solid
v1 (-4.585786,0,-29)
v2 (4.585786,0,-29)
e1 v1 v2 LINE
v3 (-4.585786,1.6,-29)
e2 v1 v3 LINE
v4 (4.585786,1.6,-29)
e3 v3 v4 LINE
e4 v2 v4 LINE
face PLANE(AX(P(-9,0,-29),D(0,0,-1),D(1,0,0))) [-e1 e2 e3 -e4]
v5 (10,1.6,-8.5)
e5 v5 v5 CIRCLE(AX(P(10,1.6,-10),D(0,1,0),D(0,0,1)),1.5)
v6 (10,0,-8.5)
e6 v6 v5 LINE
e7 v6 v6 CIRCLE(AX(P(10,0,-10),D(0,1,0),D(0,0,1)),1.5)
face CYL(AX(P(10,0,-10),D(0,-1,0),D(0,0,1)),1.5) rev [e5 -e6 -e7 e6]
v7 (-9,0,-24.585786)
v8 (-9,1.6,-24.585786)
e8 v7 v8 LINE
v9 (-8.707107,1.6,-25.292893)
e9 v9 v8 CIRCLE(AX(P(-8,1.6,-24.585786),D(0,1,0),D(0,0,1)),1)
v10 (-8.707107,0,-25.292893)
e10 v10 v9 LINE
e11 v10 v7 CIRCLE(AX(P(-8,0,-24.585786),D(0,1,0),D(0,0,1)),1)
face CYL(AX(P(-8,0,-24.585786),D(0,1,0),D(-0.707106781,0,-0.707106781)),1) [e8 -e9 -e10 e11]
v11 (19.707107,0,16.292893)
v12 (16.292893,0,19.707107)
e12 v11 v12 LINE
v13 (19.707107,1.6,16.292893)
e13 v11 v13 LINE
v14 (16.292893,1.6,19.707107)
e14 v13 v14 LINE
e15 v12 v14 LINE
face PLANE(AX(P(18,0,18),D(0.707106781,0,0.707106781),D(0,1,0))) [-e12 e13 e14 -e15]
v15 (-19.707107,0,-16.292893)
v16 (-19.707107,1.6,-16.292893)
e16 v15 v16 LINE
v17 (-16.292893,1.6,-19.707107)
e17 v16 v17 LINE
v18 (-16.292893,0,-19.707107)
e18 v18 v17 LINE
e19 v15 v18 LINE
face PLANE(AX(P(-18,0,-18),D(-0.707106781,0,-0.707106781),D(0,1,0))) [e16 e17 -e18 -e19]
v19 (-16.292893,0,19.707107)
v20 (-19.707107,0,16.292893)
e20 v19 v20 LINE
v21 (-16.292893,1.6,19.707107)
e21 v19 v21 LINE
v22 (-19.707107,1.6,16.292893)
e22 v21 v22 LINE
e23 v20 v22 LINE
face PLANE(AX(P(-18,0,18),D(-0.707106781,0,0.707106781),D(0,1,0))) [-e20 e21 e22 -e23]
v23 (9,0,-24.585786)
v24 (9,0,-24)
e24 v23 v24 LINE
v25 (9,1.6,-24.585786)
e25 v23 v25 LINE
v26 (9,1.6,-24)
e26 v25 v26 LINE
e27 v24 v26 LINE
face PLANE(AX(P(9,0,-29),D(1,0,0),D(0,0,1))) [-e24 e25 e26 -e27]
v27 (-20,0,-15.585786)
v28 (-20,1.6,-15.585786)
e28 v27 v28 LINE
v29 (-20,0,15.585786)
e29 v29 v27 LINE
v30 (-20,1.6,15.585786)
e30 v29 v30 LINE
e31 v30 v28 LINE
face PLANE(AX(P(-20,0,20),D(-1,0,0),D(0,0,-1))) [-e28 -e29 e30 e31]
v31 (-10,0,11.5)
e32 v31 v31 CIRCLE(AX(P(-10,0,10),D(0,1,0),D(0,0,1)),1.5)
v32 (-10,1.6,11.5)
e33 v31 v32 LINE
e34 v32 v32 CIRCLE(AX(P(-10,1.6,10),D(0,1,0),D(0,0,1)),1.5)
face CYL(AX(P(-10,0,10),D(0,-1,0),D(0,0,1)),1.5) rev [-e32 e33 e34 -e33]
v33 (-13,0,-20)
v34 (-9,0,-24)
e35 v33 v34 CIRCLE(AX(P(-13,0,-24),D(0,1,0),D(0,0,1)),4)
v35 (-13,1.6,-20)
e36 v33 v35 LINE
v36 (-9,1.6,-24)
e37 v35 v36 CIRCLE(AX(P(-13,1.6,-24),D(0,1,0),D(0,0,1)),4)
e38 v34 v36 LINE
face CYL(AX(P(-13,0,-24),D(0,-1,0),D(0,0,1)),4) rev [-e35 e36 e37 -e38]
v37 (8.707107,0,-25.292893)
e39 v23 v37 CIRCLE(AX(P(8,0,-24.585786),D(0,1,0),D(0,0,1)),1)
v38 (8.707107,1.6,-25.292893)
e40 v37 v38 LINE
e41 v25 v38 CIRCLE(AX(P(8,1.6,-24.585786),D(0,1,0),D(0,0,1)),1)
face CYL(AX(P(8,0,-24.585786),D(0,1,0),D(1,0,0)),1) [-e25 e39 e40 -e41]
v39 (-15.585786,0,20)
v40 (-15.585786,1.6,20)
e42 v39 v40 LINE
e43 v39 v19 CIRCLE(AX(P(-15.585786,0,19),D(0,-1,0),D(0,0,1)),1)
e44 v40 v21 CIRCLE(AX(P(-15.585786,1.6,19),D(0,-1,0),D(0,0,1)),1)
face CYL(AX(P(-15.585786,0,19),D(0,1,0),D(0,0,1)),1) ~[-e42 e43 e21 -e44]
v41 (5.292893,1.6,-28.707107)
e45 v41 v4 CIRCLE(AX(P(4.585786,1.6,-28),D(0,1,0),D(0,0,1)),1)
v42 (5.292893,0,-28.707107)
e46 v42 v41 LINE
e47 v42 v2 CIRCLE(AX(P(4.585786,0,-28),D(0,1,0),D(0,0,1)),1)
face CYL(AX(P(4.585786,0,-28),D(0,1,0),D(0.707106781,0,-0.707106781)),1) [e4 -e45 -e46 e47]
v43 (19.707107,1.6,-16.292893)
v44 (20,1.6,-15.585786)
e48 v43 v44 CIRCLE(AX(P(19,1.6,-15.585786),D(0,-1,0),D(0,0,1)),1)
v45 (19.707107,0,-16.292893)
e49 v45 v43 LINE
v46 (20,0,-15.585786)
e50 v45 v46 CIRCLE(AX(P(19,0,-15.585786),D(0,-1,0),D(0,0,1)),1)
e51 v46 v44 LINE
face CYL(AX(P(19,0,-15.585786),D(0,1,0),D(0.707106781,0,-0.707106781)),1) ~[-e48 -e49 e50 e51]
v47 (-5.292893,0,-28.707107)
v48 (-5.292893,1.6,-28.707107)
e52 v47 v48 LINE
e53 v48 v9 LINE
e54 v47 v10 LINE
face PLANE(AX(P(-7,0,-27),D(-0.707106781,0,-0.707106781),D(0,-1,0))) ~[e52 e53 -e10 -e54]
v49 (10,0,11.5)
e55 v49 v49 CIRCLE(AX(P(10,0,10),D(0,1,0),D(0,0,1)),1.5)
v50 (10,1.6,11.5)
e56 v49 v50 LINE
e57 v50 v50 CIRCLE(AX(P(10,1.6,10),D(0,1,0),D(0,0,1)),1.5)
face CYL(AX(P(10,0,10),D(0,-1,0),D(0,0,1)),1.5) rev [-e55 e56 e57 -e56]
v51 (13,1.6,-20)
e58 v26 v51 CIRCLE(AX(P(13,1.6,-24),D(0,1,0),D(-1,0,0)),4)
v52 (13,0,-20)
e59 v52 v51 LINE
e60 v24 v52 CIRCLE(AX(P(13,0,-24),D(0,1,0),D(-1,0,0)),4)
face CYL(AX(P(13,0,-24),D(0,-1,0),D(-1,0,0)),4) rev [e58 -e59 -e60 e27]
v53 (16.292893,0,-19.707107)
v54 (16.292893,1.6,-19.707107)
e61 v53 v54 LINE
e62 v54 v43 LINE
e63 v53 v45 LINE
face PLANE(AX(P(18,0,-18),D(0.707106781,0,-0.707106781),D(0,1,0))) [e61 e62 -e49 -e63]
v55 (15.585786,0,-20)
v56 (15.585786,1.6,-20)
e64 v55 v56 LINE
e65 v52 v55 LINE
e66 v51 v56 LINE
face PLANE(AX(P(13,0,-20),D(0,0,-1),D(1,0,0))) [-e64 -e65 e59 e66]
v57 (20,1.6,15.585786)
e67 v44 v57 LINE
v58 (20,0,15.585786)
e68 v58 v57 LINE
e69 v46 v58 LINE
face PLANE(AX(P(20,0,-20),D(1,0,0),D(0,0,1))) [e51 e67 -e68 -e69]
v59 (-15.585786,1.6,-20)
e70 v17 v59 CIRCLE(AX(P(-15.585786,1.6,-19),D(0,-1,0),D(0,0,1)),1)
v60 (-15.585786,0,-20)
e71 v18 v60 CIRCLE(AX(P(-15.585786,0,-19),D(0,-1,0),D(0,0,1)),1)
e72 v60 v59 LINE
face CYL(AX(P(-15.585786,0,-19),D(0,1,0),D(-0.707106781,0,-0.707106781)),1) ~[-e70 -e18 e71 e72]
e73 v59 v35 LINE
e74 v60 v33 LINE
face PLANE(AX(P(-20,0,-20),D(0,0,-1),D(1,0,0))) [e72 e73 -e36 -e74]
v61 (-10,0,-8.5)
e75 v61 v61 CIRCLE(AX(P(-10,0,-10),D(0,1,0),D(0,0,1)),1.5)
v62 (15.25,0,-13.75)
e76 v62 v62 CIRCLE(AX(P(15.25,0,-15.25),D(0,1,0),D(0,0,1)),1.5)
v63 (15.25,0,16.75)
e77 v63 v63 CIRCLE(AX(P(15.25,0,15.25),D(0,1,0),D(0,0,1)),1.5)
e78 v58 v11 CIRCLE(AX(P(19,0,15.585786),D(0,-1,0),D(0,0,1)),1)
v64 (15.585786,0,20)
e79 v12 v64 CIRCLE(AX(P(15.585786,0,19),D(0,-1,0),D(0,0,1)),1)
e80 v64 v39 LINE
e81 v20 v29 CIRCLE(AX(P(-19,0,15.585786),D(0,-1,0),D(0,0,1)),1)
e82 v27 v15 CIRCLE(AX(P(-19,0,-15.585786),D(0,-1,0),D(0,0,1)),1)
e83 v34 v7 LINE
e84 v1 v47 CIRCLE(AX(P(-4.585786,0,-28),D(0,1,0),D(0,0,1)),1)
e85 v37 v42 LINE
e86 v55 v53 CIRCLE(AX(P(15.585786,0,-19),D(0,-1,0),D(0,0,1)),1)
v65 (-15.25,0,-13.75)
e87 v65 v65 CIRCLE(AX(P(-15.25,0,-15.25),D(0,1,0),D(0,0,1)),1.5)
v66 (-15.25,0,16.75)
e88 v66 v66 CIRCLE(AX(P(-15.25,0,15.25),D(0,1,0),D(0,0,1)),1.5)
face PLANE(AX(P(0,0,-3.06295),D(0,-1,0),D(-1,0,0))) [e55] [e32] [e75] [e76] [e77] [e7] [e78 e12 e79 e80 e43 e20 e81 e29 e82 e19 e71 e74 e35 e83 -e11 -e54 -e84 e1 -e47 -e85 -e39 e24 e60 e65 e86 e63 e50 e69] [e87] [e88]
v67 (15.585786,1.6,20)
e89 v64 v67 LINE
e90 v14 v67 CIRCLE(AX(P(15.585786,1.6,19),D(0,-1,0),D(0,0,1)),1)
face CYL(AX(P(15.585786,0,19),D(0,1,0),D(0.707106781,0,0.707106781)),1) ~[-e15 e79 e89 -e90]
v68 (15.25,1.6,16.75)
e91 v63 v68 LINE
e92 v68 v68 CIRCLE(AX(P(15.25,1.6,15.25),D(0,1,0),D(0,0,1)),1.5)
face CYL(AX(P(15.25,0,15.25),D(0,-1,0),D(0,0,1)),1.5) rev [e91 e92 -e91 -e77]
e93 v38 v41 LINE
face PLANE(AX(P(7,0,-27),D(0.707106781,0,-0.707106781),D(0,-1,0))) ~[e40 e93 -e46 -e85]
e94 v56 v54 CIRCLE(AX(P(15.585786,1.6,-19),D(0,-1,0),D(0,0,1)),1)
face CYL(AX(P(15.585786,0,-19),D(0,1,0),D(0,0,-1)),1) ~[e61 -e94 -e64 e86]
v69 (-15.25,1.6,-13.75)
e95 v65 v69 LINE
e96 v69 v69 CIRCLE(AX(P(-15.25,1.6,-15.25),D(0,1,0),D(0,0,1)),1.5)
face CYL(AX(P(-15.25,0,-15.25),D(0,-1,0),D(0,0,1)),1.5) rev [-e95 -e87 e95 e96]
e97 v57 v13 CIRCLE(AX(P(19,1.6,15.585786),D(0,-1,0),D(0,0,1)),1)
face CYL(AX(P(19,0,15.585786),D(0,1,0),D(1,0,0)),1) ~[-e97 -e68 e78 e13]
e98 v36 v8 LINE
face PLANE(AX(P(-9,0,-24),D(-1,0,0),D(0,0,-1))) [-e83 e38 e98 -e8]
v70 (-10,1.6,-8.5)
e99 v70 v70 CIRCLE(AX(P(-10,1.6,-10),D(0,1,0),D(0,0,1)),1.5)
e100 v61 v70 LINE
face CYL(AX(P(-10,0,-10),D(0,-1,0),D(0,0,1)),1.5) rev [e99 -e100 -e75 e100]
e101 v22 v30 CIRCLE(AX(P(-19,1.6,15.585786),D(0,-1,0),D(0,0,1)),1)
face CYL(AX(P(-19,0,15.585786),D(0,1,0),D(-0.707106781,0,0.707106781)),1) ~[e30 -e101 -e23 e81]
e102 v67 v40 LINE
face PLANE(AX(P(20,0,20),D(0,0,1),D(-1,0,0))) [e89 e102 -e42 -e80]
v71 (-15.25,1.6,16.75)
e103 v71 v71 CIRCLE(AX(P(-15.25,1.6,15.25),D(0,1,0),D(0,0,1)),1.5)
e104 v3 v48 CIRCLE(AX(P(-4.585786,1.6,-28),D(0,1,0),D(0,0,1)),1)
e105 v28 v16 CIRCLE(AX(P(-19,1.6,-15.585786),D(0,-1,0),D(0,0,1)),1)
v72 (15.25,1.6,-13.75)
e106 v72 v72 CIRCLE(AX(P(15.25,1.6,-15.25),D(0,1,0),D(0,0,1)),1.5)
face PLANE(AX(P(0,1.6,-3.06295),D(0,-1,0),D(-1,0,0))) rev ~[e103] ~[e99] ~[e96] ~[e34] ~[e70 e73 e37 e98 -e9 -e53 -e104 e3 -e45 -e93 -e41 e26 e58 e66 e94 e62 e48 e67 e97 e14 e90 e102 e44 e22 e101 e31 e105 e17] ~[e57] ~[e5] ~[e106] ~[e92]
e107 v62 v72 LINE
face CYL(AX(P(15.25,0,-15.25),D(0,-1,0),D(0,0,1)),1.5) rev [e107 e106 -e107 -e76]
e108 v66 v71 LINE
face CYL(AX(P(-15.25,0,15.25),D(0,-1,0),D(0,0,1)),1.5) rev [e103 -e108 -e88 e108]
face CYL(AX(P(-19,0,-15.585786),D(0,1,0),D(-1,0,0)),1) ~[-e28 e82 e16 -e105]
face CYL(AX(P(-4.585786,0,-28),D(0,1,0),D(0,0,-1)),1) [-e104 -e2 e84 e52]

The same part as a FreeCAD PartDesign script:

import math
import FreeCAD as App
import Part
import Sketcher
from FreeCAD import Vector
Q = App.Units.Quantity


def edges_at(feature, points):
    """Names of the edges that pass closest to the given points."""
    edges = feature.Shape.Edges
    near = lambda p: min(range(len(edges)), key=lambda i: edges[i].distToShape(Part.Vertex(*p))[0])
    return sorted({f"Edge{near(p) + 1}" for p in points})

doc = App.newDocument("Part")
params = doc.addObject("Spreadsheet::Sheet", "Params")
for row, (alias, value) in enumerate([
    ("sketch1_diameter", "3 mm"),
    ("sketch1_radius", "4 mm"),
    ("sketch1_width", "7 mm"),
    ("sketch1_width2", "18 mm"),
    ("sketch1_height", "5 mm"),
    ("pad1_length", "1.6 mm"),
    ("chamfer_size", "4 mm"),
    ("fillet_radius", "1 mm"),
], start=1):
    params.set(f"A{row}", alias)
    params.set(f"B{row}", "=" + value)
    params.setAlias(f"B{row}", alias)

body = doc.addObject("PartDesign::Body", "Body")

sketch1 = body.newObject("Sketcher::SketchObject", "Sketch")
sketch1.AttachmentSupport = (doc.getObject("XZ_Plane"), [""])
sketch1.MapMode = "FlatFace"
sketch1.addGeometry(Part.LineSegment(Vector(20, -20, 0), Vector(13, -20, 0)), False)
sketch1.addGeometry(Part.ArcOfCircle(Part.Circle(Vector(13, -24, 0), Vector(0, 0, 1), 4), math.radians(90), math.radians(180)), False)
sketch1.addGeometry(Part.LineSegment(Vector(9, -24, 0), Vector(9, -29, 0)), False)
sketch1.addGeometry(Part.LineSegment(Vector(9, -29, 0), Vector(-9, -29, 0)), False)
sketch1.addGeometry(Part.LineSegment(Vector(-9, -29, 0), Vector(-9, -24, 0)), False)
sketch1.addGeometry(Part.ArcOfCircle(Part.Circle(Vector(-13, -24, 0), Vector(0, 0, 1), 4), math.radians(0), math.radians(90)), False)
sketch1.addGeometry(Part.LineSegment(Vector(-13, -20, 0), Vector(-20, -20, 0)), False)
sketch1.addGeometry(Part.LineSegment(Vector(-20, -20, 0), Vector(-20, 20, 0)), False)
sketch1.addGeometry(Part.LineSegment(Vector(-20, 20, 0), Vector(20, 20, 0)), False)
sketch1.addGeometry(Part.LineSegment(Vector(20, 20, 0), Vector(20, -20, 0)), False)
sketch1.addGeometry(Part.Circle(Vector(15.2, 15.2, 0), Vector(0, 0, 1), 1.5), False)
sketch1.addGeometry(Part.Circle(Vector(10, 10, 0), Vector(0, 0, 1), 1.5), False)
sketch1.addGeometry(Part.Circle(Vector(-15.2, 15.2, 0), Vector(0, 0, 1), 1.5), False)
sketch1.addGeometry(Part.Circle(Vector(-10, 10, 0), Vector(0, 0, 1), 1.5), False)
sketch1.addGeometry(Part.Circle(Vector(10, -10, 0), Vector(0, 0, 1), 1.5), False)
sketch1.addGeometry(Part.Circle(Vector(15.2, -15.2, 0), Vector(0, 0, 1), 1.5), False)
sketch1.addGeometry(Part.Circle(Vector(-10, -10, 0), Vector(0, 0, 1), 1.5), False)
sketch1.addGeometry(Part.Circle(Vector(-15.2, -15.2, 0), Vector(0, 0, 1), 1.5), False)
sketch1.addConstraint(Sketcher.Constraint("Tangent", 0, 2, 1, 1))
sketch1.addConstraint(Sketcher.Constraint("Tangent", 1, 2, 2, 1))
sketch1.addConstraint(Sketcher.Constraint("Coincident", 2, 2, 3, 1))
sketch1.addConstraint(Sketcher.Constraint("Coincident", 3, 2, 4, 1))
sketch1.addConstraint(Sketcher.Constraint("Tangent", 4, 2, 5, 1))
sketch1.addConstraint(Sketcher.Constraint("Tangent", 5, 2, 6, 1))
sketch1.addConstraint(Sketcher.Constraint("Coincident", 6, 2, 7, 1))
sketch1.addConstraint(Sketcher.Constraint("Coincident", 7, 2, 8, 1))
sketch1.addConstraint(Sketcher.Constraint("Coincident", 8, 2, 9, 1))
sketch1.addConstraint(Sketcher.Constraint("Coincident", 9, 2, 0, 1))
sketch1.addConstraint(Sketcher.Constraint("Horizontal", 0))
sketch1.addConstraint(Sketcher.Constraint("Vertical", 2))
sketch1.addConstraint(Sketcher.Constraint("Horizontal", 3))
sketch1.addConstraint(Sketcher.Constraint("Vertical", 4))
sketch1.addConstraint(Sketcher.Constraint("Horizontal", 6))
sketch1.addConstraint(Sketcher.Constraint("Vertical", 7))
sketch1.addConstraint(Sketcher.Constraint("Horizontal", 8))
sketch1.addConstraint(Sketcher.Constraint("Vertical", 9))
sketch1.addConstraint(Sketcher.Constraint("Equal", 1, 5))
sketch1.addConstraint(Sketcher.Constraint("Equal", 10, 11))
sketch1.addConstraint(Sketcher.Constraint("Equal", 11, 12))
sketch1.addConstraint(Sketcher.Constraint("Equal", 12, 13))
sketch1.addConstraint(Sketcher.Constraint("Equal", 13, 14))
sketch1.addConstraint(Sketcher.Constraint("Equal", 14, 15))
sketch1.addConstraint(Sketcher.Constraint("Equal", 15, 16))
sketch1.addConstraint(Sketcher.Constraint("Equal", 16, 17))
sketch1.addConstraint(Sketcher.Constraint("Symmetric", 13, 3, 14, 3, -1, 1))
sketch1.addConstraint(Sketcher.Constraint("Symmetric", 12, 3, 15, 3, -1, 1))
sketch1.addConstraint(Sketcher.Constraint("Symmetric", 11, 3, 16, 3, -1, 1))
sketch1.addConstraint(Sketcher.Constraint("Symmetric", 10, 3, 17, 3, -1, 1))
sketch1.addConstraint(Sketcher.Constraint("Symmetric", 6, 2, 8, 2, -1, 1))
sketch1.addConstraint(Sketcher.Constraint("Symmetric", 1, 3, 5, 3, -2))
sketch1.addConstraint(Sketcher.Constraint("Symmetric", 10, 3, 12, 3, -2))
sketch1.addConstraint(Sketcher.Constraint("Symmetric", 11, 3, 13, 3, -2))
sketch1.addConstraint(Sketcher.Constraint("Equal", 8, 7))
sketch1.addConstraint(Sketcher.Constraint("Diameter", 10, Q("3 mm")))
sketch1.addConstraint(Sketcher.Constraint("Radius", 1, Q("4 mm")))
sketch1.addConstraint(Sketcher.Constraint("DistanceX", 0, 2, 0, 1, Q("7 mm")))
sketch1.addConstraint(Sketcher.Constraint("DistanceX", 3, 2, 3, 1, Q("18 mm")))
sketch1.addConstraint(Sketcher.Constraint("DistanceY", 2, 2, 2, 1, Q("5 mm")))
sketch1.addConstraint(Sketcher.Constraint("DistanceX", -1, 1, 11, 3, Q("10 mm")))
sketch1.addConstraint(Sketcher.Constraint("DistanceY", -1, 1, 11, 3, Q("10 mm")))
sketch1.addConstraint(Sketcher.Constraint("DistanceX", 12, 3, 10, 3, Q("30.5 mm")))
sketch1.addConstraint(Sketcher.Constraint("DistanceY", 15, 3, 10, 3, Q("30.5 mm")))
sketch1.setExpression("Constraints[35]", "Params.sketch1_diameter")
sketch1.setExpression("Constraints[36]", "Params.sketch1_radius")
sketch1.setExpression("Constraints[37]", "Params.sketch1_width")
sketch1.setExpression("Constraints[38]", "Params.sketch1_width2")
sketch1.setExpression("Constraints[39]", "Params.sketch1_height")
pad1 = body.newObject("PartDesign::Pad", "Pad")
pad1.Profile = sketch1
pad1.setExpression("Length", "Params.pad1_length")
pad1.Reversed = True
doc.recompute()

chamfer = body.newObject("PartDesign::Chamfer", "Chamfer")
chamfer.Base = (pad1, edges_at(pad1, [
    (20, 0.8, 20),
    (-20, 0.8, 20),
    (-20, 0.8, -20),
    (-9, 0.8, -29),
    (9, 0.8, -29),
    (20, 0.8, -20),
]))
chamfer.setExpression("Size", "Params.chamfer_size")
doc.recompute()

fillet = body.newObject("PartDesign::Fillet", "Fillet")
fillet.Base = (chamfer, edges_at(chamfer, [
    (-5, 0.8, -29),
    (5, 0.8, -29),
    (9, 0.8, -25),
    (-9, 0.8, -25),
    (-20, 0.8, 16),
    (-20, 0.8, -16),
    (-16, 0.8, -20),
    (16, 0.8, -20),
    (20, 0.8, 16),
    (20, 0.8, -16),
    (-16, 0.8, 20),
    (16, 0.8, 20),
]))
fillet.setExpression("Radius", "Params.fillet_radius")

doc.recompute()
